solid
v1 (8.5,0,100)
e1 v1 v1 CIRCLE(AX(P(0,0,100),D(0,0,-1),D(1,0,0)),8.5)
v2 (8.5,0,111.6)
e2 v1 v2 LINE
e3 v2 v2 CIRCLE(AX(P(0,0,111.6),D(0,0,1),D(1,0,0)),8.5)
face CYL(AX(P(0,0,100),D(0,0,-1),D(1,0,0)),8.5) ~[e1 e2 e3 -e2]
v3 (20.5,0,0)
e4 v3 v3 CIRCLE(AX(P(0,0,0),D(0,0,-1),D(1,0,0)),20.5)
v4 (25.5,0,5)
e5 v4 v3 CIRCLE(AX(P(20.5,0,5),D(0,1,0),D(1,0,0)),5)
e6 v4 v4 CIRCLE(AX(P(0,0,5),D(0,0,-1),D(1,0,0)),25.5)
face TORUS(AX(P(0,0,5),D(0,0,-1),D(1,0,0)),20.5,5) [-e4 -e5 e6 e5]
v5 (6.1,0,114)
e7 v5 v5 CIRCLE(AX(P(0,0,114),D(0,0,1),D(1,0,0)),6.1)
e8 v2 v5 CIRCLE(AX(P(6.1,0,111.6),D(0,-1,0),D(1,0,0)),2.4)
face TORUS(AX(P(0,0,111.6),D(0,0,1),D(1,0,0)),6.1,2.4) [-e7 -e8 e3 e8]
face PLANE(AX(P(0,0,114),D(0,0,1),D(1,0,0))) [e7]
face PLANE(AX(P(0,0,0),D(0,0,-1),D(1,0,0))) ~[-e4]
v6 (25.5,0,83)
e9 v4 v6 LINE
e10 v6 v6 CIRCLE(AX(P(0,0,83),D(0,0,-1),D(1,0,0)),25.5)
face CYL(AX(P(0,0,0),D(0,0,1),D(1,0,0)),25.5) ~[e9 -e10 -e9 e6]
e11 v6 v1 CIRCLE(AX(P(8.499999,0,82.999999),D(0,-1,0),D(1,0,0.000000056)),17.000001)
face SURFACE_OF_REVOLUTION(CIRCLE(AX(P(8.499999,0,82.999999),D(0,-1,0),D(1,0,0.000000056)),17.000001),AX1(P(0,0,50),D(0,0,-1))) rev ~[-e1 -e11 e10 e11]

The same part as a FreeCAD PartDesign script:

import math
import FreeCAD as App
import Part
import Sketcher
from FreeCAD import Vector


def edges_at(feature, points):
    """Names of the edges that pass closest to the given points."""
    edges = feature.Shape.Edges
    near = lambda p: min(range(len(edges)), key=lambda i: edges[i].distToShape(Part.Vertex(*p))[0])
    return sorted({f"Edge{near(p) + 1}" for p in points})

doc = App.newDocument("Part")
body = doc.addObject("PartDesign::Body", "Body")

# Sketch on XZ plane
sketch1 = doc.addObject("Sketcher::SketchObject", "Sketch")
body.addObject(sketch1)
sketch1.AttachmentSupport = (doc.XZ_Plane, [""])
sketch1.MapMode = "FlatFace"
sketch1.addGeometry(Part.LineSegment(Vector(0, 100, 0), Vector(0, 0, 0)), False)
sketch1.addGeometry(Part.LineSegment(Vector(0, 0, 0), Vector(26, 0, 0)), False)
sketch1.addGeometry(Part.LineSegment(Vector(26, 0, 0), Vector(26, 83, 0)), False)
sketch1.addGeometry(Part.ArcOfCircle(Part.Circle(Vector(8, 83, 0), Vector(0, 0, 1), 17), math.radians(0), math.radians(90)), False)
sketch1.addGeometry(Part.LineSegment(Vector(8, 100, 0), Vector(0, 100, 0)), False)
sketch1.addConstraint(Sketcher.Constraint("Coincident", 0, 2, 1, 1))
sketch1.addConstraint(Sketcher.Constraint("Coincident", 1, 2, 2, 1))
sketch1.addConstraint(Sketcher.Constraint("Tangent", 2, 2, 3, 1))
sketch1.addConstraint(Sketcher.Constraint("Tangent", 3, 2, 4, 1))
sketch1.addConstraint(Sketcher.Constraint("Coincident", 4, 2, 0, 1))
sketch1.addConstraint(Sketcher.Constraint("Vertical", 0))
sketch1.addConstraint(Sketcher.Constraint("Horizontal", 1))
sketch1.addConstraint(Sketcher.Constraint("Vertical", 2))
sketch1.addConstraint(Sketcher.Constraint("Horizontal", 4))
sketch1.addConstraint(Sketcher.Constraint("Coincident", 0, 2, -1, 1))
sketch1.addConstraint(Sketcher.Constraint("Radius", 3, 17.000001))
sketch1.addConstraint(Sketcher.Constraint("DistanceY", 0, 2, 0, 1, 100.0))
sketch1.addConstraint(Sketcher.Constraint("DistanceX", 1, 1, 1, 2, 25.5))
revolution = doc.addObject("PartDesign::Revolution", "Revolution")
body.addObject(revolution)
revolution.Profile = sketch1
revolution.ReferenceAxis = (sketch1, ["V_Axis"])
revolution.Angle = 360

# Sketch on XY plane
sketch2 = doc.addObject("Sketcher::SketchObject", "Sketch001")
body.addObject(sketch2)
sketch2.AttachmentSupport = (doc.XY_Plane, [""])
sketch2.MapMode = "FlatFace"
sketch2.AttachmentOffset = App.Placement(Vector(0, 0, 100), App.Rotation())
sketch2.addGeometry(Part.Circle(Vector(0, 0, 0), Vector(0, 0, 1), 8), False)
sketch2.addConstraint(Sketcher.Constraint("Coincident", 0, 3, -1, 1))
sketch2.addConstraint(Sketcher.Constraint("Diameter", 0, 17.0))
pad1 = doc.addObject("PartDesign::Pad", "Pad")
body.addObject(pad1)
pad1.Profile = sketch2
pad1.Length = 14
doc.recompute()

fillet = doc.addObject("PartDesign::Fillet", "Fillet")
body.addObject(fillet)
fillet.Base = (pad1, edges_at(pad1, [(-8.5, 0, 114)]))
fillet.Radius = 2.4
doc.recompute()

fillet2 = doc.addObject("PartDesign::Fillet", "Fillet001")
body.addObject(fillet2)
fillet2.Base = (fillet, edges_at(fillet, [(-25.5, 0, 0)]))
fillet2.Radius = 5

doc.recompute()
